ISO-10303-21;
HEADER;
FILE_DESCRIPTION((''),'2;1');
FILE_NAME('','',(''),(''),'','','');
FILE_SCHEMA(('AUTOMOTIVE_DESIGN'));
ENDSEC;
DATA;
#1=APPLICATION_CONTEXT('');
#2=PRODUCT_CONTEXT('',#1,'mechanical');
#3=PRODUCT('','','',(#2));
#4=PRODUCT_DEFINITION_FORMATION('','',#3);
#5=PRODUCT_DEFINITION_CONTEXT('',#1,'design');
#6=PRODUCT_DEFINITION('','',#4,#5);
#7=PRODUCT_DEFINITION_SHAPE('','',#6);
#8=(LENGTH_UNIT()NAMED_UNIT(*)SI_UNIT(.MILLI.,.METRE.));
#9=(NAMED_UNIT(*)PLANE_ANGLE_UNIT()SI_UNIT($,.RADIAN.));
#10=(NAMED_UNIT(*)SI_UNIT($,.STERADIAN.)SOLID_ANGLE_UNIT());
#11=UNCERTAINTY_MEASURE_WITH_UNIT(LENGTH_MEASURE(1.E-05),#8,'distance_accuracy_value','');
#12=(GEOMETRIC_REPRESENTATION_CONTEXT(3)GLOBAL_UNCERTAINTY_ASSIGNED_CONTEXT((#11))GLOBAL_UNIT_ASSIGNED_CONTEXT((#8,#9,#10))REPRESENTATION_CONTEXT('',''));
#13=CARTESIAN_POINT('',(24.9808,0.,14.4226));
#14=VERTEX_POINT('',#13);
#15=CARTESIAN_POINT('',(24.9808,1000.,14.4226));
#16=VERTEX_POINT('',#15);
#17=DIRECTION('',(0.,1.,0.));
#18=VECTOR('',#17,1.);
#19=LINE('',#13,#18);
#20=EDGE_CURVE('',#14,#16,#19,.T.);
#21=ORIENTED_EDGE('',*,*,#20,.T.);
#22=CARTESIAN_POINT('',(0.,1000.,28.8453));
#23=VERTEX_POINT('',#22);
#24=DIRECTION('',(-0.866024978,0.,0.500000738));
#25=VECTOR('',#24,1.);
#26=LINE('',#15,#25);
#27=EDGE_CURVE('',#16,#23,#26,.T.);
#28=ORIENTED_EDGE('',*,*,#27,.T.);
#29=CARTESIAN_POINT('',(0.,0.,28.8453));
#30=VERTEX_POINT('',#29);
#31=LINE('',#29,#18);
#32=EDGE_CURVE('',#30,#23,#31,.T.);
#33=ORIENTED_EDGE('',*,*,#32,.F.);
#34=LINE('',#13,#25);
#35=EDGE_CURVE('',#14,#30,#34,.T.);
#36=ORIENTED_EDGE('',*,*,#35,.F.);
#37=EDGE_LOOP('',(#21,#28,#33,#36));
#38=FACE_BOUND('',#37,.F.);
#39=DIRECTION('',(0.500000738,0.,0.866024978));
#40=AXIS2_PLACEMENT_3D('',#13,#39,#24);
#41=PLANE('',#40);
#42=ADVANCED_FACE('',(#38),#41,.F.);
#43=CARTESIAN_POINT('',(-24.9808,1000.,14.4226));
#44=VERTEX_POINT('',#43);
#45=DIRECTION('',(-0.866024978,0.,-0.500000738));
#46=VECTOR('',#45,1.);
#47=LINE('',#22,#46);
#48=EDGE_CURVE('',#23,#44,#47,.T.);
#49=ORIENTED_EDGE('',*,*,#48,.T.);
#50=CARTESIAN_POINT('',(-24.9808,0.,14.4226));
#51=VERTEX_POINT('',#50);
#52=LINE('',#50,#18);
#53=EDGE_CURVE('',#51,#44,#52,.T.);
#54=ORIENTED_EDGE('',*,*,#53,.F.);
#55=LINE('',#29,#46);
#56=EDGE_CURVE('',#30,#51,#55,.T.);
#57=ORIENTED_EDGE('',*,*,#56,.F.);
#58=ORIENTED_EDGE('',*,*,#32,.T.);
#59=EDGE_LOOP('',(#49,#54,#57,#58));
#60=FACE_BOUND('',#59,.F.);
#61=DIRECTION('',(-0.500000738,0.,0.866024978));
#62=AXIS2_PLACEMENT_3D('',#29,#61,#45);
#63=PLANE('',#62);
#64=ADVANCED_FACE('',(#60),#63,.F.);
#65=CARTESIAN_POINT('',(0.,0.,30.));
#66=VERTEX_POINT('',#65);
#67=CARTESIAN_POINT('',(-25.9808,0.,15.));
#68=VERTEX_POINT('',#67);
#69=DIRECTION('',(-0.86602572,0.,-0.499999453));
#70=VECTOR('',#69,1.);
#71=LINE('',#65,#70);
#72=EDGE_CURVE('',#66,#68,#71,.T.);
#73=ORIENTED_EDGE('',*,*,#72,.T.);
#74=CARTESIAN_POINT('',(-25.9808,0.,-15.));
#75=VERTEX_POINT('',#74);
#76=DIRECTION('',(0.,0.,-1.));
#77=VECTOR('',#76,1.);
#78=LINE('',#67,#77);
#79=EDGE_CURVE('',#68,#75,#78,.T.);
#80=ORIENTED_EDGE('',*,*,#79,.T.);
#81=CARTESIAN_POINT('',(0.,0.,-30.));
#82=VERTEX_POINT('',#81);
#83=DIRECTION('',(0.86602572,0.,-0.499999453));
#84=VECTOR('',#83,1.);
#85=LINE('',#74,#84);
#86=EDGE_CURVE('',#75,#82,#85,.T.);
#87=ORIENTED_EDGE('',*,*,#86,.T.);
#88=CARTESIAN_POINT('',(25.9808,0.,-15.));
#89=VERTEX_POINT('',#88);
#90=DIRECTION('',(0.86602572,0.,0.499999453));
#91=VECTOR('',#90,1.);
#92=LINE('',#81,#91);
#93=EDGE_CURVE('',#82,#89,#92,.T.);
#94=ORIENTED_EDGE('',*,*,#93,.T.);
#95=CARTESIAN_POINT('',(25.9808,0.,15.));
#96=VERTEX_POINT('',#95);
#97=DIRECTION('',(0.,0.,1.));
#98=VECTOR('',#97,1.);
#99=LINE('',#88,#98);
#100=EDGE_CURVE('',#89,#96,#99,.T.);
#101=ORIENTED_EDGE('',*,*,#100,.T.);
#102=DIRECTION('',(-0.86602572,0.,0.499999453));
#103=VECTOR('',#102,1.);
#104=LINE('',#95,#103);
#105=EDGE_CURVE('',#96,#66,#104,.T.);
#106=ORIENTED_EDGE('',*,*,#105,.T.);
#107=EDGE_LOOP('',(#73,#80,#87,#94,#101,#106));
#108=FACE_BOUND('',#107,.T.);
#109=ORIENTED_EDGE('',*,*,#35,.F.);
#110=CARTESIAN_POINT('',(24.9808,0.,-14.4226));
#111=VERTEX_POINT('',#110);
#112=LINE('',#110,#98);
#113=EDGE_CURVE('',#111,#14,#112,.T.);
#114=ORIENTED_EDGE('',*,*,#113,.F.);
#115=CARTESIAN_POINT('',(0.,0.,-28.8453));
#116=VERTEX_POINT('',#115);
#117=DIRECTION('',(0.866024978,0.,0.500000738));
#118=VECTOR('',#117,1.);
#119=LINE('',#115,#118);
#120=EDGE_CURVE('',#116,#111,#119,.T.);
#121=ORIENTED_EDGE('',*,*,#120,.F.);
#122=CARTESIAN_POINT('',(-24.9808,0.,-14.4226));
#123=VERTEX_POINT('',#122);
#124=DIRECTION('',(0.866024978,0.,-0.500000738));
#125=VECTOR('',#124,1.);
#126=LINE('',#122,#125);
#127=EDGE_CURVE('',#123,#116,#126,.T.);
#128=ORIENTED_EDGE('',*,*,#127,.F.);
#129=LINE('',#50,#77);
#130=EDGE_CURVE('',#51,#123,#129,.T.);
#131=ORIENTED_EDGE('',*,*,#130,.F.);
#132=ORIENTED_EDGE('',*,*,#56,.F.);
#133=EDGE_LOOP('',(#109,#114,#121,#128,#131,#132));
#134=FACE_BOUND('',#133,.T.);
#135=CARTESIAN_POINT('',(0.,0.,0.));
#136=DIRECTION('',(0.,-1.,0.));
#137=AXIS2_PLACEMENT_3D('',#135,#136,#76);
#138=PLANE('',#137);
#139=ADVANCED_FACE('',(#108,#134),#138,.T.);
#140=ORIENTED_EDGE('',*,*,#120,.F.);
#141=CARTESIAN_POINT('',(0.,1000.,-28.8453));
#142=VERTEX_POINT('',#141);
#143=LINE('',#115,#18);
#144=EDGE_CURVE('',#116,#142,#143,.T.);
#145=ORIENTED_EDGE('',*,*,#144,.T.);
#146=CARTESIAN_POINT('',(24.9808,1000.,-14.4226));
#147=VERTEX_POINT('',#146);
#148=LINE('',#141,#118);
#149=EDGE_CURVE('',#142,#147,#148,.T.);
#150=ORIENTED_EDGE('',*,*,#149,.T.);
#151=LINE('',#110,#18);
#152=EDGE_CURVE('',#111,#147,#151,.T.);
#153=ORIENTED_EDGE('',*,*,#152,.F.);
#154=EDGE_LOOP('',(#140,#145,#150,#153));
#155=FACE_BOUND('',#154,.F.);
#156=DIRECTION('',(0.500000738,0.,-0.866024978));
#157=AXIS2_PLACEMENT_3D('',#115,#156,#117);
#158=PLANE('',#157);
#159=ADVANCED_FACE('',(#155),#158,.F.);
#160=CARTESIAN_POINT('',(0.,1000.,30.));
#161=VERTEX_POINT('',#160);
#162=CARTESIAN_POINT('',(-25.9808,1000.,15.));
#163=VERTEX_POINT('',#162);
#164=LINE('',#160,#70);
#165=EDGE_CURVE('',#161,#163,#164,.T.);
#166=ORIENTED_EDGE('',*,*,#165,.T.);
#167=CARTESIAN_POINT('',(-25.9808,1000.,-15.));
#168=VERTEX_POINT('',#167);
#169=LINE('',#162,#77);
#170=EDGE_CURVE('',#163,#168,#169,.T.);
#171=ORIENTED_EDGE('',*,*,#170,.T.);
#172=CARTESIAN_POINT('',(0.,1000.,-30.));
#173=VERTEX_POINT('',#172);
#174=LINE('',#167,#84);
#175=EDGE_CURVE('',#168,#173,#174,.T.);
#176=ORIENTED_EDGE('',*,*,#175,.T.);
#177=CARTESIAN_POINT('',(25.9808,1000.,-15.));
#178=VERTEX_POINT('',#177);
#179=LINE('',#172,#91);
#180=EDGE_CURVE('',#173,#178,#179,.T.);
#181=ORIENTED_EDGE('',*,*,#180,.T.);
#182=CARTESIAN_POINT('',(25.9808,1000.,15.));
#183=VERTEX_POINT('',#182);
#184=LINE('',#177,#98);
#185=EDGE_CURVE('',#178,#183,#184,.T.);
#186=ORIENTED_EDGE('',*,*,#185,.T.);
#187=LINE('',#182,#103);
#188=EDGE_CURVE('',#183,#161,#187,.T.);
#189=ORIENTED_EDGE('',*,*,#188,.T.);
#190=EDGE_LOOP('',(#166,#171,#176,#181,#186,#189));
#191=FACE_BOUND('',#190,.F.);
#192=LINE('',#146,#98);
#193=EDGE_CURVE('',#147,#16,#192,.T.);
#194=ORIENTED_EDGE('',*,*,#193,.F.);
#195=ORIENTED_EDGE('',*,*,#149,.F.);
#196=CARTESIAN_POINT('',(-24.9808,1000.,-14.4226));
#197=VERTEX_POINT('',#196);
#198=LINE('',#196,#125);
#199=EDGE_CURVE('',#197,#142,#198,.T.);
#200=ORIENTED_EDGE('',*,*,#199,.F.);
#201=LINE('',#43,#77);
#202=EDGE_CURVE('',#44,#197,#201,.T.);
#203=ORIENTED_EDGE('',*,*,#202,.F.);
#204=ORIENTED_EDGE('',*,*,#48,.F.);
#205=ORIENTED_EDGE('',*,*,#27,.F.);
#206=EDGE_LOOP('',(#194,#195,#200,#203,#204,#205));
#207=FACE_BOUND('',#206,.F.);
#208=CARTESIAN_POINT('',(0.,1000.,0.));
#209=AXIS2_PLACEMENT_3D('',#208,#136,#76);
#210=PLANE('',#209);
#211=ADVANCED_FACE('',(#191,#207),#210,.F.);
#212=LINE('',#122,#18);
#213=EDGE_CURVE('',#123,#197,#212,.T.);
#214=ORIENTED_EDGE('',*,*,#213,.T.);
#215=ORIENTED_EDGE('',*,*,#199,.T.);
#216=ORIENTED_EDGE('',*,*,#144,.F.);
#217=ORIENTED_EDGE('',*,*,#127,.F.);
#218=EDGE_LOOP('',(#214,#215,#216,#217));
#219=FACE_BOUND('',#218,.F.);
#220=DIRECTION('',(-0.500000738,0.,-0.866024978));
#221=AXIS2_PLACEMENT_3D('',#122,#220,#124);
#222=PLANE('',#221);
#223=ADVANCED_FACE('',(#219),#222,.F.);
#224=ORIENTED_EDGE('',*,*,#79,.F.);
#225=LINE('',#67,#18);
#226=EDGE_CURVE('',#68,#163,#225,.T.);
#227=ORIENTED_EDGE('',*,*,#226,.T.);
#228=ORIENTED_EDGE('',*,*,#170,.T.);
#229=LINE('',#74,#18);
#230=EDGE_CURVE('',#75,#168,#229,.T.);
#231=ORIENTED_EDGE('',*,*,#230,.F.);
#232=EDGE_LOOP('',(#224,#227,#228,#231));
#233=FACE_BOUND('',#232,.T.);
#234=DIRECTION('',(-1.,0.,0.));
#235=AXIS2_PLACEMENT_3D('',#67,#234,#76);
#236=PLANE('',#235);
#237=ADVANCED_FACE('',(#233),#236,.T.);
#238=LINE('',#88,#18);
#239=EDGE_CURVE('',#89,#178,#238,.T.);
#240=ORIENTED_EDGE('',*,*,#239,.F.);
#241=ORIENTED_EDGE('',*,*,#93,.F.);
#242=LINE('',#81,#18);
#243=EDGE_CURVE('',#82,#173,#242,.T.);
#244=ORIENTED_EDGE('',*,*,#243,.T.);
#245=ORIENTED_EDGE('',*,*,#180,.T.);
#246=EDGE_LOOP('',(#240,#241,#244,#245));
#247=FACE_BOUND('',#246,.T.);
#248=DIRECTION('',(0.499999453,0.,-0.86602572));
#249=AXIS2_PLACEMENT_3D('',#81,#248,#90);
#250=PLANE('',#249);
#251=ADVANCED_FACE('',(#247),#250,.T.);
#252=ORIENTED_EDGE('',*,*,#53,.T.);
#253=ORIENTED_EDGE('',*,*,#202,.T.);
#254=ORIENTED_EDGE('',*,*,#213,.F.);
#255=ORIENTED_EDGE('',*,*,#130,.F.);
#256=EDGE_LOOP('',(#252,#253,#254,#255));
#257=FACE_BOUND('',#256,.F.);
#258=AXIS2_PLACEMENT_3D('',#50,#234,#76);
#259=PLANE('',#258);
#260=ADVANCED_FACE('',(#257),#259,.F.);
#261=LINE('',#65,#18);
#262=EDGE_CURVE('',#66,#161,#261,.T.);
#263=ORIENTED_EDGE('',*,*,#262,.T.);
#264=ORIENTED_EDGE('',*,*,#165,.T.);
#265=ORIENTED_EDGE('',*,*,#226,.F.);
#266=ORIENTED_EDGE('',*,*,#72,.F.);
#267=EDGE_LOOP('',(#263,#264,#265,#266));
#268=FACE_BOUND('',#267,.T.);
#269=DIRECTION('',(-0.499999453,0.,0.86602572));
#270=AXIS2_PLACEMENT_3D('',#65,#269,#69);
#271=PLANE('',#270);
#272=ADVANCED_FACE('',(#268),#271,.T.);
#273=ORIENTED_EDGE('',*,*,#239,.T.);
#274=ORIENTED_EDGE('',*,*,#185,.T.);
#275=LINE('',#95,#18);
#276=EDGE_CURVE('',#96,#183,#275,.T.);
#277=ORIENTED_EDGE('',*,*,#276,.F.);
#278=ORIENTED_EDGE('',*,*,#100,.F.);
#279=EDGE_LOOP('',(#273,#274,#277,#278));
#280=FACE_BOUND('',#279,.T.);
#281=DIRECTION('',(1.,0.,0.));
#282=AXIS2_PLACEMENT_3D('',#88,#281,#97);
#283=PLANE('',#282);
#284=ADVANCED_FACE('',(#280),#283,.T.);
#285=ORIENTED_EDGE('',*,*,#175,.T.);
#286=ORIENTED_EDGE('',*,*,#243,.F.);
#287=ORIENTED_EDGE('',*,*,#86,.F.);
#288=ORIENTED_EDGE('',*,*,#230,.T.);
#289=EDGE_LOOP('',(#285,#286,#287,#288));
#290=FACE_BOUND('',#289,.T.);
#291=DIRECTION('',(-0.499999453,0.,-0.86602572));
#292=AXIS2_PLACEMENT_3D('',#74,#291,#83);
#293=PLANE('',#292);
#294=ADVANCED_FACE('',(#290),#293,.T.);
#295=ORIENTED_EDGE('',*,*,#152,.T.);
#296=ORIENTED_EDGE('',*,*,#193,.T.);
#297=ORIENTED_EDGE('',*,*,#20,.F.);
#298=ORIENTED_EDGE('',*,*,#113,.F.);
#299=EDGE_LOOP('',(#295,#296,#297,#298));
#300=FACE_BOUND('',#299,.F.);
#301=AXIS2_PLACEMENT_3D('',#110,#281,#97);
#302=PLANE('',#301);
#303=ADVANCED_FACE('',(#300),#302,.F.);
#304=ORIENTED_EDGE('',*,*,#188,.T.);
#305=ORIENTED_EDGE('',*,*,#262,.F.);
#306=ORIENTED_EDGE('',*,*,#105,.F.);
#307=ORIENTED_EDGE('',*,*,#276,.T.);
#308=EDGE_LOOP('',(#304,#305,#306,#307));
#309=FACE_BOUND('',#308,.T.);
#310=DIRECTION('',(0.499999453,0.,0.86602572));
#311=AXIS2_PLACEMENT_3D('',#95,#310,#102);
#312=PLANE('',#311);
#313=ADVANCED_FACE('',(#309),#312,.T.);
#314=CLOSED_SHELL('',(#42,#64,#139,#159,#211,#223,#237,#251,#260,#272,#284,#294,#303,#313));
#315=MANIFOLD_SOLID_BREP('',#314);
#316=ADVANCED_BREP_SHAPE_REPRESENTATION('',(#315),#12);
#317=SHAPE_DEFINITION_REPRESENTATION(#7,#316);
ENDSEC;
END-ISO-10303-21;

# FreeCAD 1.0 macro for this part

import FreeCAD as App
import Part
import Sketcher
from FreeCAD import Vector
Q = App.Units.Quantity


def add_polygon(sketch, points):
    """Adds a closed chain of lines whose ends are joined by coincident constraints."""
    first, n = sketch.GeometryCount, len(points)
    for a, b in zip(points, points[1:] + points[:1]):
        sketch.addGeometry(Part.LineSegment(App.Vector(*a, 0), App.Vector(*b, 0)), False)
    for i in range(n):
        sketch.addConstraint(Sketcher.Constraint("Coincident", first + i, 2, first + (i + 1) % n, 1))

doc = App.newDocument("Part")
body = doc.addObject("PartDesign::Body", "Body")

# Sketch on XZ plane
sketch1 = body.newObject("Sketcher::SketchObject", "Sketch")
sketch1.AttachmentSupport = (doc.getObject("XZ_Plane"), [""])
sketch1.MapMode = "FlatFace"
add_polygon(sketch1, [(26, 15), (0, 30), (-26, 15), (-26, -15), (0, -30), (26, -15)])  # lines 0-5
add_polygon(sketch1, [(-25, 14), (0, 29), (25, 14), (25, -14), (0, -29), (-25, -14)])  # lines 6-11
sketch1.addConstraint(Sketcher.Constraint("Vertical", 2))
sketch1.addConstraint(Sketcher.Constraint("Vertical", 5))
sketch1.addConstraint(Sketcher.Constraint("Vertical", 8))
sketch1.addConstraint(Sketcher.Constraint("Vertical", 11))
sketch1.addConstraint(Sketcher.Constraint("Symmetric", 0, 2, 3, 2, -1, 1))
sketch1.addConstraint(Sketcher.Constraint("Symmetric", 1, 2, 4, 2, -1, 1))
sketch1.addConstraint(Sketcher.Constraint("Symmetric", 6, 2, 9, 2, -1, 1))
sketch1.addConstraint(Sketcher.Constraint("Symmetric", 7, 2, 10, 2, -1, 1))
sketch1.addConstraint(Sketcher.Constraint("PointOnObject", 0, 2, -2))
sketch1.addConstraint(Sketcher.Constraint("PointOnObject", 6, 2, -2))
sketch1.addConstraint(Sketcher.Constraint("Parallel", 0, 3))
sketch1.addConstraint(Sketcher.Constraint("Parallel", 4, 6))
sketch1.addConstraint(Sketcher.Constraint("Parallel", 3, 7))
sketch1.addConstraint(Sketcher.Constraint("Parallel", 6, 9))
sketch1.addConstraint(Sketcher.Constraint("Horizontal", 2, 2, 4, 2))
sketch1.addConstraint(Sketcher.Constraint("DistanceY", 2, 2, 2, 1, 30.0))
sketch1.addConstraint(Sketcher.Constraint("Angle", 0, Q("150 deg")))
sketch1.addConstraint(Sketcher.Constraint("Distance", 0, 30.0))
sketch1.addConstraint(Sketcher.Constraint("DistanceX", 7, 2, 5, 2, 1.0))
sketch1.addConstraint(Sketcher.Constraint("DistanceY", 8, 2, 8, 1, 28.8452))
pad1 = body.newObject("PartDesign::Pad", "Pad")
pad1.Profile = sketch1
pad1.Length = 1000
pad1.Reversed = True

doc.recompute()
